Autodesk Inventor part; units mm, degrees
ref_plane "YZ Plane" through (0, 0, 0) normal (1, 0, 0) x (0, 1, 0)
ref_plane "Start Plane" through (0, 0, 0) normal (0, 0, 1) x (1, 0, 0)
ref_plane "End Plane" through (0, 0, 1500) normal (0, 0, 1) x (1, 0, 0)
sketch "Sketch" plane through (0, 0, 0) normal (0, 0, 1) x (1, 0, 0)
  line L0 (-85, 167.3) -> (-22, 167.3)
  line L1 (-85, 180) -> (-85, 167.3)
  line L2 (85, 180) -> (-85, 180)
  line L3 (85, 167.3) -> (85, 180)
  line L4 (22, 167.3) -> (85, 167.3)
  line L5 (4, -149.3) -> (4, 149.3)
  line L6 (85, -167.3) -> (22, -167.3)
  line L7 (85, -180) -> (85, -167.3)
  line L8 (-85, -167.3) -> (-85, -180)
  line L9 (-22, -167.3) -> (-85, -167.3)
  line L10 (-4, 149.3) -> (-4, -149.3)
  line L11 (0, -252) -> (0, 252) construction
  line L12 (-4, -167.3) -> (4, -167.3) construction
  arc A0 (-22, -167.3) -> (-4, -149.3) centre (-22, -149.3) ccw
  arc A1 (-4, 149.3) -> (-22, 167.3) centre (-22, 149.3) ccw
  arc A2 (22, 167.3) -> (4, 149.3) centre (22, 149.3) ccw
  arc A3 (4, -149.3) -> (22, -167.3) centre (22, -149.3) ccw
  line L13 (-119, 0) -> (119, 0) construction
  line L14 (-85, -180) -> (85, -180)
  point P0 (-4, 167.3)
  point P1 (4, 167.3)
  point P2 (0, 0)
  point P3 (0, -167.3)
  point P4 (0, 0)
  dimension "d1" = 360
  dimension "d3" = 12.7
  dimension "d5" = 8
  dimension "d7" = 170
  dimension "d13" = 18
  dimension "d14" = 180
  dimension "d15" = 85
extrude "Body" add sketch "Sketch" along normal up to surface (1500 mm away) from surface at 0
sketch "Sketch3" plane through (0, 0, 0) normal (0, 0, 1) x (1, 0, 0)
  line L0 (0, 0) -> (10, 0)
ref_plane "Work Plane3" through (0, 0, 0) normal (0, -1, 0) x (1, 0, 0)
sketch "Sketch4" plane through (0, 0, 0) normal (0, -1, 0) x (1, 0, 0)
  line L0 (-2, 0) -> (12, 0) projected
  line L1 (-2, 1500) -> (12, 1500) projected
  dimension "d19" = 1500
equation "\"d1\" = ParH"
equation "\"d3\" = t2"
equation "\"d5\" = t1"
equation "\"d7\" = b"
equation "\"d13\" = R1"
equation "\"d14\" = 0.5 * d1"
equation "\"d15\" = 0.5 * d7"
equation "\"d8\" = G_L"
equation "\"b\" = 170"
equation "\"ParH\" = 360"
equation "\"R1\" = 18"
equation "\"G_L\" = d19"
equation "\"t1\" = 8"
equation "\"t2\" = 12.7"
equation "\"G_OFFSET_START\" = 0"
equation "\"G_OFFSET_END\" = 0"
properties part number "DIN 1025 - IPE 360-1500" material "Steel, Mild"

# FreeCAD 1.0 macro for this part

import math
import FreeCAD as App
import Part
import Sketcher

doc = App.newDocument("Part")
params = doc.addObject("Spreadsheet::Sheet", "Params")
for row, (alias, value) in enumerate([
    ("sketch1_radius", "18 mm"),
    ("sketch1_width", "170 mm"),
    ("sketch1_height", "12.7 mm"),
    ("pad1_length", "1500 mm"),
], start=1):
    params.set(f"A{row}", alias)
    params.set(f"B{row}", "=" + value)
    params.setAlias(f"B{row}", alias)

body = doc.addObject("PartDesign::Body", "Body")

# Sketch on XY plane
sketch1 = body.newObject("Sketcher::SketchObject", "Sketch")
sketch1.AttachmentSupport = (doc.getObject("XY_Plane"), [""])
sketch1.MapMode = "FlatFace"
sketch1.addGeometry([
    Part.LineSegment(App.Vector(-85, 180, 0), App.Vector(-85, 167, 0)),  # 0
    Part.LineSegment(App.Vector(-85, 167, 0), App.Vector(-22, 167, 0)),  # 1
    Part.ArcOfCircle(Part.Circle(App.Vector(-22, 149, 0), App.Vector(0, 0, 1), 18), math.radians(0), math.radians(90)),  # 2
    Part.LineSegment(App.Vector(-4, 149, 0), App.Vector(-4, -149, 0)),  # 3
    Part.ArcOfCircle(Part.Circle(App.Vector(-22, -149, 0), App.Vector(0, 0, 1), 18), math.radians(-90), math.radians(0)),  # 4
    Part.LineSegment(App.Vector(-22, -167, 0), App.Vector(-85, -167, 0)),  # 5
    Part.LineSegment(App.Vector(-85, -167, 0), App.Vector(-85, -180, 0)),  # 6
    Part.LineSegment(App.Vector(-85, -180, 0), App.Vector(85, -180, 0)),  # 7
    Part.LineSegment(App.Vector(85, -180, 0), App.Vector(85, -167, 0)),  # 8
    Part.LineSegment(App.Vector(85, -167, 0), App.Vector(22, -167, 0)),  # 9
    Part.ArcOfCircle(Part.Circle(App.Vector(22, -149, 0), App.Vector(0, 0, 1), 18), math.radians(180), math.radians(270)),  # 10
    Part.LineSegment(App.Vector(4, -149, 0), App.Vector(4, 149, 0)),  # 11
    Part.ArcOfCircle(Part.Circle(App.Vector(22, 149, 0), App.Vector(0, 0, 1), 18), math.radians(90), math.radians(180)),  # 12
    Part.LineSegment(App.Vector(22, 167, 0), App.Vector(85, 167, 0)),  # 13
    Part.LineSegment(App.Vector(85, 167, 0), App.Vector(85, 180, 0)),  # 14
    Part.LineSegment(App.Vector(85, 180, 0), App.Vector(-85, 180, 0)),  # 15
], False)
sketch1.addConstraint([
    Sketcher.Constraint("Coincident", 0, 2, 1, 1),
    Sketcher.Constraint("Tangent", 1, 2, 2, 2),
    Sketcher.Constraint("Tangent", 2, 1, 3, 1),
    Sketcher.Constraint("Tangent", 3, 2, 4, 2),
    Sketcher.Constraint("Tangent", 4, 1, 5, 1),
    Sketcher.Constraint("Coincident", 5, 2, 6, 1),
    Sketcher.Constraint("Coincident", 6, 2, 7, 1),
    Sketcher.Constraint("Coincident", 7, 2, 8, 1),
    Sketcher.Constraint("Coincident", 8, 2, 9, 1),
    Sketcher.Constraint("Tangent", 9, 2, 10, 2),
    Sketcher.Constraint("Tangent", 10, 1, 11, 1),
    Sketcher.Constraint("Tangent", 11, 2, 12, 2),
    Sketcher.Constraint("Tangent", 12, 1, 13, 1),
    Sketcher.Constraint("Coincident", 13, 2, 14, 1),
    Sketcher.Constraint("Coincident", 14, 2, 15, 1),
    Sketcher.Constraint("Coincident", 15, 2, 0, 1),
    Sketcher.Constraint("Vertical", 0),
    Sketcher.Constraint("Horizontal", 1),
    Sketcher.Constraint("Vertical", 3),
    Sketcher.Constraint("Horizontal", 5),
    Sketcher.Constraint("Vertical", 6),
    Sketcher.Constraint("Horizontal", 7),
    Sketcher.Constraint("Vertical", 8),
    Sketcher.Constraint("Horizontal", 9),
    Sketcher.Constraint("Vertical", 11),
    Sketcher.Constraint("Horizontal", 13),
    Sketcher.Constraint("Vertical", 14),
    Sketcher.Constraint("Horizontal", 15),
    Sketcher.Constraint("Equal", 2, 4),
    Sketcher.Constraint("Equal", 4, 10),
    Sketcher.Constraint("Equal", 10, 12),
    Sketcher.Constraint("Symmetric", 2, 3, 10, 3, -1, 1),
    Sketcher.Constraint("Symmetric", 5, 2, 13, 2, -1, 1),
    Sketcher.Constraint("Symmetric", 7, 2, 15, 2, -1, 1),
    Sketcher.Constraint("Symmetric", 5, 2, 8, 2, -2),
    Sketcher.Constraint("Radius", 2, 18.0),
    Sketcher.Constraint("DistanceX", 7, 1, 7, 2, 170.0),
    Sketcher.Constraint("DistanceY", 0, 2, 0, 1, 12.7),
    Sketcher.Constraint("DistanceY", 6, 2, -1, 1, 180.0),
    Sketcher.Constraint("DistanceX", 3, 2, 10, 1, 8.0),
])
sketch1.setExpression("Constraints[35]", "Params.sketch1_radius")
sketch1.setExpression("Constraints[36]", "Params.sketch1_width")
sketch1.setExpression("Constraints[37]", "Params.sketch1_height")
pad1 = body.newObject("PartDesign::Pad", "Pad")
pad1.Profile = sketch1
pad1.setExpression("Length", "Params.pad1_length")

doc.recompute()
